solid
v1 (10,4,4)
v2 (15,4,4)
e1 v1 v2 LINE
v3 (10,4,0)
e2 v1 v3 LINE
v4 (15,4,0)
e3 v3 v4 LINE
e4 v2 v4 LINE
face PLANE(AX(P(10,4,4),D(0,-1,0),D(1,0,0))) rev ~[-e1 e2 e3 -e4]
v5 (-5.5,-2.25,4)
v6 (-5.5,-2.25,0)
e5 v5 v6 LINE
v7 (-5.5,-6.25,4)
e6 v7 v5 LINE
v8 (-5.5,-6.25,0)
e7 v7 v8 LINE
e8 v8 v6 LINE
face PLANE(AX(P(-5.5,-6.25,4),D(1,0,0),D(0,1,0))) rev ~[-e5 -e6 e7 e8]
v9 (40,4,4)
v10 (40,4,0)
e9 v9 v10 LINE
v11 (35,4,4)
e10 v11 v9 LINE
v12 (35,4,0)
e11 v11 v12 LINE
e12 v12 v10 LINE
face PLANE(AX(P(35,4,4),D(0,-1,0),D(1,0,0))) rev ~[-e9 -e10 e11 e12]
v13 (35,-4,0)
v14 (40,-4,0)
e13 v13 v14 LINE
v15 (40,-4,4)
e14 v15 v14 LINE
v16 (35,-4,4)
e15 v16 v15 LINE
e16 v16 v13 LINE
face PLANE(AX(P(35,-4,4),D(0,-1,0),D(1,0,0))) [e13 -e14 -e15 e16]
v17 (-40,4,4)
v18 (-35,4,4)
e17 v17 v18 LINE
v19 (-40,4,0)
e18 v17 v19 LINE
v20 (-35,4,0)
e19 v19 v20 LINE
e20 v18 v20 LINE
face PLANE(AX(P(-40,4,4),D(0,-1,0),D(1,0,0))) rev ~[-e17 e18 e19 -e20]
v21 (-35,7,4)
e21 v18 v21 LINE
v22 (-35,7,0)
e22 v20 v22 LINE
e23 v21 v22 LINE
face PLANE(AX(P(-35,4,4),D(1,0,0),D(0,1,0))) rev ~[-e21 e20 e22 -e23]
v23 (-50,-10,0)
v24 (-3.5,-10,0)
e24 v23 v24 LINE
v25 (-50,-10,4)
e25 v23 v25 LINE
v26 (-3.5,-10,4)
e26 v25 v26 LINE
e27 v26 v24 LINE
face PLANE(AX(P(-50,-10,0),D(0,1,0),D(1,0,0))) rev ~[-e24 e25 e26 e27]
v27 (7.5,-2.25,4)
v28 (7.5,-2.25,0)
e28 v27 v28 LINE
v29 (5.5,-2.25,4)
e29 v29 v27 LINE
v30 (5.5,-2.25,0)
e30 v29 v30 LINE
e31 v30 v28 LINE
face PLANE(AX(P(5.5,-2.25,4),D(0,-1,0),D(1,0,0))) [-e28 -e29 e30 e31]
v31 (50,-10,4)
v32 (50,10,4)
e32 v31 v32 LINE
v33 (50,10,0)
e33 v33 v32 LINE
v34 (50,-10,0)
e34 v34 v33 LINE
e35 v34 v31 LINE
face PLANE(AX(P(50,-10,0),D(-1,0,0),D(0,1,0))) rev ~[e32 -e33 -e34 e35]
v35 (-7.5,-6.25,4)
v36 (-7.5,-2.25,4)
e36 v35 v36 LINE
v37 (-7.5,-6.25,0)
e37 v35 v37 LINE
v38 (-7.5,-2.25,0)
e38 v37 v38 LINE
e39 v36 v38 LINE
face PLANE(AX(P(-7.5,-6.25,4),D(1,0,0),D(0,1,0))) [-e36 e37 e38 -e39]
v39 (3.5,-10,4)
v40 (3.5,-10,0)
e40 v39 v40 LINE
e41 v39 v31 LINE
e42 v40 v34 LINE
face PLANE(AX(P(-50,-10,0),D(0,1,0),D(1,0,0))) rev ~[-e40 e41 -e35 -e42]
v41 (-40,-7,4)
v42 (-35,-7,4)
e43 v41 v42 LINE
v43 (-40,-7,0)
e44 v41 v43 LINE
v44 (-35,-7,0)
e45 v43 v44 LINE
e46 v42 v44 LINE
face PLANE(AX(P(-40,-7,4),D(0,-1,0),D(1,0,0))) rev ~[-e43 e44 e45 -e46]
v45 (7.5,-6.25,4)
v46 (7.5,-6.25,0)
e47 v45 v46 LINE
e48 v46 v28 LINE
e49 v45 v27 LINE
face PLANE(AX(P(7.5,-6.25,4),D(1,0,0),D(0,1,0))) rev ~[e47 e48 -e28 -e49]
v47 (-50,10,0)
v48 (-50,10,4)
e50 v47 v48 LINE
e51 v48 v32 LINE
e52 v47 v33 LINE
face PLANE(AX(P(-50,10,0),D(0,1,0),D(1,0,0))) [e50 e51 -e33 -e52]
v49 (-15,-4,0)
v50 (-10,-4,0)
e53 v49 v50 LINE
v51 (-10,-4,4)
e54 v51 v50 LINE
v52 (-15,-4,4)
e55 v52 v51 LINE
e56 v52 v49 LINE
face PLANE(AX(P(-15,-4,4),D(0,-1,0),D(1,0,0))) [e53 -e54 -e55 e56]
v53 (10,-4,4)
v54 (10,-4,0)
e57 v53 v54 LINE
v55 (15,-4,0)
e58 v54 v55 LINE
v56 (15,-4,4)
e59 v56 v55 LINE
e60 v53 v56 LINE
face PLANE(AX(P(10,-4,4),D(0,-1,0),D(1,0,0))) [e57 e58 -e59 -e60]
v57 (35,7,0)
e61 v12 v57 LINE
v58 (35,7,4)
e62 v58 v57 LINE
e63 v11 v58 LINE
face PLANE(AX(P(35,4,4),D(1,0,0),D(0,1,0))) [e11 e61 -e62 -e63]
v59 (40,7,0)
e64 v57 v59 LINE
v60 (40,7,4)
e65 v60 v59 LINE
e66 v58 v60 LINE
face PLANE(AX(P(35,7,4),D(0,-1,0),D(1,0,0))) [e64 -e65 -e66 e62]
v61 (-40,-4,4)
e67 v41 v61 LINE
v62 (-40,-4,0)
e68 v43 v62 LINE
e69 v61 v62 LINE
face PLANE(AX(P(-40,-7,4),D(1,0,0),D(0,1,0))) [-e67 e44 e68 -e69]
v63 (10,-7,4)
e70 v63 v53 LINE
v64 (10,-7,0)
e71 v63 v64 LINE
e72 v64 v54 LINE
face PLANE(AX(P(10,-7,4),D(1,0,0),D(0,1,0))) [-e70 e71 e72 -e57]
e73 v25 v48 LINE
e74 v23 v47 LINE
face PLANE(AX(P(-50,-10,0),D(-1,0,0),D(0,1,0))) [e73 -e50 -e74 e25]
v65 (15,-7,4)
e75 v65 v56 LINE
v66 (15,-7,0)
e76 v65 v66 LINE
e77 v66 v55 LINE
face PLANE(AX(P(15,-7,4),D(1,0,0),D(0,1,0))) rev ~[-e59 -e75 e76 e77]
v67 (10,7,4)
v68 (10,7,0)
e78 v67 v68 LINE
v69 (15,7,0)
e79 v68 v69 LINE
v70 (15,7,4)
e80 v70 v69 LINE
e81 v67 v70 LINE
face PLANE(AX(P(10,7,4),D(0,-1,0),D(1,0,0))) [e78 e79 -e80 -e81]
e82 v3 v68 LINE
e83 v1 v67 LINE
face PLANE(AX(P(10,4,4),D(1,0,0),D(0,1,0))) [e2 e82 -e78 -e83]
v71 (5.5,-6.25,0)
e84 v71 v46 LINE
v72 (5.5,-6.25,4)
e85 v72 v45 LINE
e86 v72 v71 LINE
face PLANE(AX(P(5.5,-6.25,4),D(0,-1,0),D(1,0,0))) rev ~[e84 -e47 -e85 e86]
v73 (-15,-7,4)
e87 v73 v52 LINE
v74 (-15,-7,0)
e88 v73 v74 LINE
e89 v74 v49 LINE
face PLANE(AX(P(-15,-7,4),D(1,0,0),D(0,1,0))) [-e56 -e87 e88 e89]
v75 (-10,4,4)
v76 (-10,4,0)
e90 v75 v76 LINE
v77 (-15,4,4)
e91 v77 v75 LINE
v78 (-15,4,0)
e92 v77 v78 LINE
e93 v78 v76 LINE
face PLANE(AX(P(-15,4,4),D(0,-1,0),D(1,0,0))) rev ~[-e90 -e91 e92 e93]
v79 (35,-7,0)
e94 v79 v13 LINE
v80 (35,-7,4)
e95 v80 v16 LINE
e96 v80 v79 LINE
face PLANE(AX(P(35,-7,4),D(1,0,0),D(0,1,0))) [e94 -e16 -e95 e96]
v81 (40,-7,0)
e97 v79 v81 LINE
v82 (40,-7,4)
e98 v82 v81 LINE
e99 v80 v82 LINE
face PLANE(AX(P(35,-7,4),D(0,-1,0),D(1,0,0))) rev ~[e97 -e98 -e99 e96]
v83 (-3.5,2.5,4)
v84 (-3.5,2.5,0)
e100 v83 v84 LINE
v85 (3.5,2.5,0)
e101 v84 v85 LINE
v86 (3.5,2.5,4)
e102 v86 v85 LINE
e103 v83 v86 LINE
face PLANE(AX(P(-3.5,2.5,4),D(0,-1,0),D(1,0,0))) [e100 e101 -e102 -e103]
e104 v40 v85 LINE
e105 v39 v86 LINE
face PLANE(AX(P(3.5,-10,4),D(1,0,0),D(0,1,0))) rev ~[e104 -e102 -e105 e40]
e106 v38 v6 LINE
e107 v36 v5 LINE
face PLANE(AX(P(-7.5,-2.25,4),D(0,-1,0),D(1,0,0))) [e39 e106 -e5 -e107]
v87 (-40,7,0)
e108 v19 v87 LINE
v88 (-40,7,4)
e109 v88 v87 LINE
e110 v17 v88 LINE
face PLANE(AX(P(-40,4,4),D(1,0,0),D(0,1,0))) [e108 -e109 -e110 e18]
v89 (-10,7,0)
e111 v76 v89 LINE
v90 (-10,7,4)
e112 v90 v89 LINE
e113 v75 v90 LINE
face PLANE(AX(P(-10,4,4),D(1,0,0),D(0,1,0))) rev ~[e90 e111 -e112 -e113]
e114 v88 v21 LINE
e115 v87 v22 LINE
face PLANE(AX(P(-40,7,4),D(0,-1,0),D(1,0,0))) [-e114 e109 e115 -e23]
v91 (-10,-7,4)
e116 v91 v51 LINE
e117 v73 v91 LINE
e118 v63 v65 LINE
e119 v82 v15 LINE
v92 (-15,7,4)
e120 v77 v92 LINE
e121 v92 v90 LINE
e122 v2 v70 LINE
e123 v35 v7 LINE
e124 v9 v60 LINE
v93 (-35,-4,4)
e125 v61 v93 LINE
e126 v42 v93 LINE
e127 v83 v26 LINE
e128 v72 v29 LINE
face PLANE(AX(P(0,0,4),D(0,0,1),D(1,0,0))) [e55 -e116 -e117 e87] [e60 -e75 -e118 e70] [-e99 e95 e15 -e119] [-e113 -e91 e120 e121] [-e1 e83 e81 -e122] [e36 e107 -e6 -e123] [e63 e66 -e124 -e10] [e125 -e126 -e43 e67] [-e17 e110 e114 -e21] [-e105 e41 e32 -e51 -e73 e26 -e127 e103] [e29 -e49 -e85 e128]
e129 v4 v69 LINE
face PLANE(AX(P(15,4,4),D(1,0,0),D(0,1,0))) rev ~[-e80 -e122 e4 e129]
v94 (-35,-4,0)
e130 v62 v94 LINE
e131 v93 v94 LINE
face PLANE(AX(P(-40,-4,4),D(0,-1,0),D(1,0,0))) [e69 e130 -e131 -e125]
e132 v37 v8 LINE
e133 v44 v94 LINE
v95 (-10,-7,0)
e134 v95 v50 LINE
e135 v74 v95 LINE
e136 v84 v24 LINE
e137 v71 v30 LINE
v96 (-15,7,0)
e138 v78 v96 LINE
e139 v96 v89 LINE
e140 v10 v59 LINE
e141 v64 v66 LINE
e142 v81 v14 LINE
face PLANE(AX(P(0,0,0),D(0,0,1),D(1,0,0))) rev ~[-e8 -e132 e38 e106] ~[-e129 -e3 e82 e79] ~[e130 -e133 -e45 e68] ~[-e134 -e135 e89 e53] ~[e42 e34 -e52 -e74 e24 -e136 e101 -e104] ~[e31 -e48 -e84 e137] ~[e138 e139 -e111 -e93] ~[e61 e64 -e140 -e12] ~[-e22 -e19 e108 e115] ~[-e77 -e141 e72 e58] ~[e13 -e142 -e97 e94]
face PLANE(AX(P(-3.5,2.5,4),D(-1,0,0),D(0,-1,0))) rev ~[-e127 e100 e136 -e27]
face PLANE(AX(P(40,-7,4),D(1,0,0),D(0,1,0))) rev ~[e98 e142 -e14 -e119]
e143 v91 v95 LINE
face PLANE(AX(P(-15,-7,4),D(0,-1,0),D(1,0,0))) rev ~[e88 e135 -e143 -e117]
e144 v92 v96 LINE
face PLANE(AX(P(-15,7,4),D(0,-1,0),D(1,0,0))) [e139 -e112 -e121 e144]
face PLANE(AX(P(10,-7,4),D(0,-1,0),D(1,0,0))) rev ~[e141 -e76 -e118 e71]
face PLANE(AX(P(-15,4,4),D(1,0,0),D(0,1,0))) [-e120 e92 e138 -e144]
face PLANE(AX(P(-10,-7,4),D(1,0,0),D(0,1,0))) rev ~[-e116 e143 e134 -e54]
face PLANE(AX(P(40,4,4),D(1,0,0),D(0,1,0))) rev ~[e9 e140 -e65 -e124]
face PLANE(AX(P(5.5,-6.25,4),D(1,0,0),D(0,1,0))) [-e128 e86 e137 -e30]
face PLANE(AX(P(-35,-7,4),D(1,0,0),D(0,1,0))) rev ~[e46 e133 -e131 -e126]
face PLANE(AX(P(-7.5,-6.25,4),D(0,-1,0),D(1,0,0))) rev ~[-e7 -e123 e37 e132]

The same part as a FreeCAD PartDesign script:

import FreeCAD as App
import Part
import Sketcher

V = App.Vector


def add_polygon(sketch, points):
    """Adds a closed chain of lines whose ends are joined by coincident constraints."""
    first, n = sketch.GeometryCount, len(points)
    for a, b in zip(points, points[1:] + points[:1]):
        sketch.addGeometry(Part.LineSegment(App.Vector(*a, 0), App.Vector(*b, 0)), False)
    for i in range(n):
        sketch.addConstraint(Sketcher.Constraint("Coincident", first + i, 2, first + (i + 1) % n, 1))

doc = App.newDocument("Part")
body = doc.addObject("PartDesign::Body", "Body")

# Sketch on XY plane
sketch1 = body.newObject("Sketcher::SketchObject", "Sketch")
sketch1.AttachmentSupport = (doc.getObject("XY_Plane"), [""])
sketch1.MapMode = "FlatFace"
add_polygon(sketch1, [(-50, 10), (-50, -10), (50, -10), (50, 10)])  # lines 0-3
sketch1.addConstraint(Sketcher.Constraint("Vertical", 0))
sketch1.addConstraint(Sketcher.Constraint("Horizontal", 1))
sketch1.addConstraint(Sketcher.Constraint("Vertical", 2))
sketch1.addConstraint(Sketcher.Constraint("Horizontal", 3))
sketch1.addConstraint(Sketcher.Constraint("Symmetric", 0, 2, 2, 2, -1, 1))
sketch1.addConstraint(Sketcher.Constraint("DistanceX", 1, 1, 1, 2, 100.0))
sketch1.addConstraint(Sketcher.Constraint("DistanceY", 0, 2, 0, 1, 20.0))
pad1 = body.newObject("PartDesign::Pad", "Pad")
pad1.Profile = sketch1
pad1.Length = 4

# Sketch on XY plane
sketch2 = body.newObject("Sketcher::SketchObject", "Sketch001")
sketch2.AttachmentSupport = (doc.getObject("XY_Plane"), [""])
sketch2.MapMode = "FlatFace"
sketch2.AttachmentOffset = App.Placement(V(0, 0, 4), App.Rotation())
add_polygon(sketch2, [(-40, 7), (-40, 4), (-35, 4), (-35, 7)])  # lines 0-3
add_polygon(sketch2, [(-40, -4), (-40, -7), (-35, -7), (-35, -4)])  # lines 4-7
add_polygon(sketch2, [(-15, -4), (-15, -7), (-10, -7), (-10, -4)])  # lines 8-11
add_polygon(sketch2, [(-15, 7), (-15, 4), (-10, 4), (-10, 7)])  # lines 12-15
add_polygon(sketch2, [(-3.5, 2.5), (-3.5, -10), (3.5, -10), (3.5, 2.5)])  # lines 16-19
add_polygon(sketch2, [(-7.5, -2.2), (-7.5, -6.2), (-5.5, -6.2), (-5.5, -2.2)])  # lines 20-23
add_polygon(sketch2, [(5.5, -2.2), (5.5, -6.2), (7.5, -6.2), (7.5, -2.2)])  # lines 24-27
add_polygon(sketch2, [(10, -4), (10, -7), (15, -7), (15, -4)])  # lines 28-31
add_polygon(sketch2, [(10, 7), (10, 4), (15, 4), (15, 7)])  # lines 32-35
add_polygon(sketch2, [(35, 7), (35, 4), (40, 4), (40, 7)])  # lines 36-39
add_polygon(sketch2, [(35, -4), (35, -7), (40, -7), (40, -4)])  # lines 40-43
sketch2.addConstraint(Sketcher.Constraint("Vertical", 0))
sketch2.addConstraint(Sketcher.Constraint("Horizontal", 1))
sketch2.addConstraint(Sketcher.Constraint("Vertical", 2))
sketch2.addConstraint(Sketcher.Constraint("Horizontal", 3))
sketch2.addConstraint(Sketcher.Constraint("Vertical", 4))
sketch2.addConstraint(Sketcher.Constraint("Horizontal", 5))
sketch2.addConstraint(Sketcher.Constraint("Vertical", 6))
sketch2.addConstraint(Sketcher.Constraint("Horizontal", 7))
sketch2.addConstraint(Sketcher.Constraint("Vertical", 8))
sketch2.addConstraint(Sketcher.Constraint("Horizontal", 9))
sketch2.addConstraint(Sketcher.Constraint("Vertical", 10))
sketch2.addConstraint(Sketcher.Constraint("Horizontal", 11))
sketch2.addConstraint(Sketcher.Constraint("Vertical", 12))
sketch2.addConstraint(Sketcher.Constraint("Horizontal", 13))
sketch2.addConstraint(Sketcher.Constraint("Vertical", 14))
sketch2.addConstraint(Sketcher.Constraint("Horizontal", 15))
sketch2.addConstraint(Sketcher.Constraint("Vertical", 16))
sketch2.addConstraint(Sketcher.Constraint("Horizontal", 17))
sketch2.addConstraint(Sketcher.Constraint("Vertical", 18))
sketch2.addConstraint(Sketcher.Constraint("Horizontal", 19))
sketch2.addConstraint(Sketcher.Constraint("Vertical", 20))
sketch2.addConstraint(Sketcher.Constraint("Horizontal", 21))
sketch2.addConstraint(Sketcher.Constraint("Vertical", 22))
sketch2.addConstraint(Sketcher.Constraint("Horizontal", 23))
sketch2.addConstraint(Sketcher.Constraint("Vertical", 24))
sketch2.addConstraint(Sketcher.Constraint("Horizontal", 25))
sketch2.addConstraint(Sketcher.Constraint("Vertical", 26))
sketch2.addConstraint(Sketcher.Constraint("Horizontal", 27))
sketch2.addConstraint(Sketcher.Constraint("Vertical", 28))
sketch2.addConstraint(Sketcher.Constraint("Horizontal", 29))
sketch2.addConstraint(Sketcher.Constraint("Vertical", 30))
sketch2.addConstraint(Sketcher.Constraint("Horizontal", 31))
sketch2.addConstraint(Sketcher.Constraint("Vertical", 32))
sketch2.addConstraint(Sketcher.Constraint("Horizontal", 33))
sketch2.addConstraint(Sketcher.Constraint("Vertical", 34))
sketch2.addConstraint(Sketcher.Constraint("Horizontal", 35))
sketch2.addConstraint(Sketcher.Constraint("Vertical", 36))
sketch2.addConstraint(Sketcher.Constraint("Horizontal", 37))
sketch2.addConstraint(Sketcher.Constraint("Vertical", 38))
sketch2.addConstraint(Sketcher.Constraint("Horizontal", 39))
sketch2.addConstraint(Sketcher.Constraint("Vertical", 40))
sketch2.addConstraint(Sketcher.Constraint("Horizontal", 41))
sketch2.addConstraint(Sketcher.Constraint("Vertical", 42))
sketch2.addConstraint(Sketcher.Constraint("Horizontal", 43))
sketch2.addConstraint(Sketcher.Constraint("Symmetric", 14, 2, 28, 2, -1, 1))
sketch2.addConstraint(Sketcher.Constraint("Symmetric", 12, 2, 30, 2, -1, 1))
sketch2.addConstraint(Sketcher.Constraint("Symmetric", 10, 2, 32, 2, -1, 1))
sketch2.addConstraint(Sketcher.Constraint("Symmetric", 8, 2, 34, 2, -1, 1))
sketch2.addConstraint(Sketcher.Constraint("Symmetric", 6, 2, 36, 2, -1, 1))
sketch2.addConstraint(Sketcher.Constraint("Symmetric", 4, 2, 38, 2, -1, 1))
sketch2.addConstraint(Sketcher.Constraint("Symmetric", 2, 2, 40, 2, -1, 1))
sketch2.addConstraint(Sketcher.Constraint("Symmetric", 0, 2, 42, 2, -1, 1))
sketch2.addConstraint(Sketcher.Constraint("Symmetric", 21, 2, 24, 2, -2))
sketch2.addConstraint(Sketcher.Constraint("Symmetric", 23, 2, 26, 2, -2))
sketch2.addConstraint(Sketcher.Constraint("Symmetric", 9, 2, 28, 2, -2))
sketch2.addConstraint(Sketcher.Constraint("Symmetric", 11, 2, 30, 2, -2))
sketch2.addConstraint(Sketcher.Constraint("Symmetric", 1, 2, 36, 2, -2))
sketch2.addConstraint(Sketcher.Constraint("Symmetric", 3, 2, 38, 2, -2))
sketch2.addConstraint(Sketcher.Constraint("Horizontal", 5, 2, 8, 2))
sketch2.addConstraint(Sketcher.Constraint("Horizontal", 7, 2, 10, 2))
sketch2.addConstraint(Sketcher.Constraint("Equal", 7, 9))
sketch2.addConstraint(Sketcher.Constraint("DistanceX", 1, 1, 1, 2, 5.0))
sketch2.addConstraint(Sketcher.Constraint("DistanceX", 17, 1, 17, 2, 7.0))
sketch2.addConstraint(Sketcher.Constraint("DistanceX", 21, 1, 21, 2, 2.0))
sketch2.addConstraint(Sketcher.Constraint("DistanceY", 0, 2, 0, 1, 3.0))
sketch2.addConstraint(Sketcher.Constraint("DistanceY", 20, 2, 20, 1, 4.0))
sketch2.addConstraint(Sketcher.Constraint("DistanceY", 16, 2, 16, 1, 12.5))
sketch2.addConstraint(Sketcher.Constraint("DistanceX", 0, 2, -1, 1, 40.0))
sketch2.addConstraint(Sketcher.Constraint("DistanceY", -1, 1, 0, 2, 4.0))
sketch2.addConstraint(Sketcher.Constraint("DistanceX", 8, 2, -1, 1, 15.0))
sketch2.addConstraint(Sketcher.Constraint("DistanceY", 16, 2, -1, 1, 10.0))
sketch2.addConstraint(Sketcher.Constraint("DistanceX", 20, 2, 16, 2, 4.0))
sketch2.addConstraint(Sketcher.Constraint("DistanceX", 17, 2, 24, 2, 2.0))
sketch2.addConstraint(Sketcher.Constraint("DistanceY", 20, 2, -1, 1, 6.25))
pocket1 = body.newObject("PartDesign::Pocket", "Pocket")
pocket1.Profile = sketch2
pocket1.Length = 4

doc.recompute()
